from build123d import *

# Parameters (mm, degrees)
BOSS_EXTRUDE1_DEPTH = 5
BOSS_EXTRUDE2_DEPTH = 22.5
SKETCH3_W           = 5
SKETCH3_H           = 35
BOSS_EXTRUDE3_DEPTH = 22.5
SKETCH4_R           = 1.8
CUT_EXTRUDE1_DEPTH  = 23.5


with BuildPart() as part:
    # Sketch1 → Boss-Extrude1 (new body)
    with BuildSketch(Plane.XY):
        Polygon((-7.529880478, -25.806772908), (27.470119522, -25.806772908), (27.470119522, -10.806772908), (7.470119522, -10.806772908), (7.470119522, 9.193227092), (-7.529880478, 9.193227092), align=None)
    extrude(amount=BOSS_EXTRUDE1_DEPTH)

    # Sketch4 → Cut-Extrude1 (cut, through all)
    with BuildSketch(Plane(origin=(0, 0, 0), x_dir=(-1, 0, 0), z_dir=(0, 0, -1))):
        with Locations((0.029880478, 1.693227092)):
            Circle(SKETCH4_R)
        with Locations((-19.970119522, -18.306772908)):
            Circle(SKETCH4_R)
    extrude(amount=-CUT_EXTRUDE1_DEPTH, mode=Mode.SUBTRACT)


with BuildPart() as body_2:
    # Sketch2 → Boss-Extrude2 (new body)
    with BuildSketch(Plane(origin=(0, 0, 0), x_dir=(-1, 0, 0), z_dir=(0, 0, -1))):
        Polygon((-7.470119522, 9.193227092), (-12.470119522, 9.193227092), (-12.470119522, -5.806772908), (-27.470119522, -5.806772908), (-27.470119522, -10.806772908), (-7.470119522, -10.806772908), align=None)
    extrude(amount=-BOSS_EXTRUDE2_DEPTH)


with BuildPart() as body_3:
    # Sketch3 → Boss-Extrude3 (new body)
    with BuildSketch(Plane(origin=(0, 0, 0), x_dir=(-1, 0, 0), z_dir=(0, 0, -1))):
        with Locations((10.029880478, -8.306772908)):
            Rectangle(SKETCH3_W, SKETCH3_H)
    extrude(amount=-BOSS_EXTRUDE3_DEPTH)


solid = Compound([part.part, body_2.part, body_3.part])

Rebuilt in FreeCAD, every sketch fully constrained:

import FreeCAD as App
import Part
import Sketcher
from FreeCAD import Vector

doc = App.newDocument("Part")
params = doc.addObject("Spreadsheet::Sheet", "Params")
for row, (alias, value) in enumerate([
    ("sketch1_width", "35 mm"),
    ("sketch1_width2", "20 mm"),
    ("pad1_length", "5 mm"),
    ("sketch2_diameter", "3.6 mm"),
    ("sketch3_width", "5 mm"),
    ("sketch3_width2", "15 mm"),
    ("pad2_length", "22.5 mm"),
    ("sketch4_width", "5 mm"),
    ("sketch4_height", "35 mm"),
    ("pad3_length", "22.5 mm"),
], start=1):
    params.set(f"A{row}", alias)
    params.set(f"B{row}", "=" + value)
    params.setAlias(f"B{row}", alias)

body = doc.addObject("PartDesign::Body", "Body")

# Sketch on XY plane
sketch1 = doc.addObject("Sketcher::SketchObject", "Sketch")
body.addObject(sketch1)
sketch1.AttachmentSupport = (doc.XY_Plane, [""])
sketch1.MapMode = "FlatFace"
sketch1.addGeometry([
    Part.LineSegment(Vector(-8, -26, 0), Vector(27, -26, 0)),  # 0
    Part.LineSegment(Vector(27, -26, 0), Vector(27, -11, 0)),  # 1
    Part.LineSegment(Vector(27, -11, 0), Vector(7, -11, 0)),  # 2
    Part.LineSegment(Vector(7, -11, 0), Vector(7, 9, 0)),  # 3
    Part.LineSegment(Vector(7, 9, 0), Vector(-8, 9, 0)),  # 4
    Part.LineSegment(Vector(-8, 9, 0), Vector(-8, -26, 0)),  # 5
], False)
sketch1.addConstraint([
    Sketcher.Constraint("Coincident", 0, 2, 1, 1),
    Sketcher.Constraint("Coincident", 1, 2, 2, 1),
    Sketcher.Constraint("Coincident", 2, 2, 3, 1),
    Sketcher.Constraint("Coincident", 3, 2, 4, 1),
    Sketcher.Constraint("Coincident", 4, 2, 5, 1),
    Sketcher.Constraint("Coincident", 5, 2, 0, 1),
    Sketcher.Constraint("Horizontal", 0),
    Sketcher.Constraint("Vertical", 1),
    Sketcher.Constraint("Horizontal", 2),
    Sketcher.Constraint("Vertical", 3),
    Sketcher.Constraint("Horizontal", 4),
    Sketcher.Constraint("Vertical", 5),
    Sketcher.Constraint("Equal", 4, 1),
    Sketcher.Constraint("Equal", 2, 3),
    Sketcher.Constraint("DistanceX", 0, 1, 0, 2, 35.0),
    Sketcher.Constraint("DistanceX", 2, 2, 2, 1, 20.0),
    Sketcher.Constraint("DistanceX", -1, 1, 0, 2, 27.47012),
    Sketcher.Constraint("DistanceY", 0, 2, -1, 1, 25.806773),
])
sketch1.setExpression("Constraints[14]", "Params.sketch1_width")
sketch1.setExpression("Constraints[15]", "Params.sketch1_width2")
pad1 = doc.addObject("PartDesign::Pad", "Pad")
body.addObject(pad1)
pad1.Profile = sketch1
pad1.setExpression("Length", "Params.pad1_length")

# Sketch on XY plane
sketch2 = doc.addObject("Sketcher::SketchObject", "Sketch001")
body.addObject(sketch2)
sketch2.AttachmentSupport = (doc.XY_Plane, [""])
sketch2.MapMode = "FlatFace"
sketch2.addGeometry([
    Part.Circle(Vector(0, 1.7, 0), Vector(0, 0, 1), 1.8),
    Part.Circle(Vector(20, -18.3, 0), Vector(0, 0, 1), 1.8),
], False)
sketch2.addConstraint([
    Sketcher.Constraint("Equal", 0, 1),
    Sketcher.Constraint("Diameter", 0, 3.6),
    Sketcher.Constraint("DistanceX", 0, 3, 1, 3, 20.0),
    Sketcher.Constraint("DistanceY", 1, 3, 0, 3, 20.0),
    Sketcher.Constraint("DistanceX", 0, 3, -1, 1, 0.02988),
    Sketcher.Constraint("DistanceY", -1, 1, 0, 3, 1.693227),
])
sketch2.setExpression("Constraints[1]", "Params.sketch2_diameter")
pocket1 = doc.addObject("PartDesign::Pocket", "Pocket")
body.addObject(pocket1)
pocket1.Profile = sketch2
pocket1.Type = "ThroughAll"
pocket1.Reversed = True
body2 = doc.addObject("PartDesign::Body", "Body001")

# Sketch on XY plane
sketch3 = doc.addObject("Sketcher::SketchObject", "Sketch002")
body2.addObject(sketch3)
sketch3.AttachmentSupport = (doc.getObject("XY_Plane001"), [""])
sketch3.MapMode = "FlatFace"
sketch3.addGeometry([
    Part.LineSegment(Vector(7.5, 9.2, 0), Vector(12.5, 9.2, 0)),  # 0
    Part.LineSegment(Vector(12.5, 9.2, 0), Vector(12.5, -5.8, 0)),  # 1
    Part.LineSegment(Vector(12.5, -5.8, 0), Vector(27.5, -5.8, 0)),  # 2
    Part.LineSegment(Vector(27.5, -5.8, 0), Vector(27.5, -10.8, 0)),  # 3
    Part.LineSegment(Vector(27.5, -10.8, 0), Vector(7.5, -10.8, 0)),  # 4
    Part.LineSegment(Vector(7.5, -10.8, 0), Vector(7.5, 9.2, 0)),  # 5
], False)
sketch3.addConstraint([
    Sketcher.Constraint("Coincident", 0, 2, 1, 1),
    Sketcher.Constraint("Coincident", 1, 2, 2, 1),
    Sketcher.Constraint("Coincident", 2, 2, 3, 1),
    Sketcher.Constraint("Coincident", 3, 2, 4, 1),
    Sketcher.Constraint("Coincident", 4, 2, 5, 1),
    Sketcher.Constraint("Coincident", 5, 2, 0, 1),
    Sketcher.Constraint("Horizontal", 0),
    Sketcher.Constraint("Vertical", 1),
    Sketcher.Constraint("Horizontal", 2),
    Sketcher.Constraint("Vertical", 3),
    Sketcher.Constraint("Horizontal", 4),
    Sketcher.Constraint("Vertical", 5),
    Sketcher.Constraint("Equal", 2, 1),
    Sketcher.Constraint("Equal", 0, 3),
    Sketcher.Constraint("DistanceX", 0, 1, 0, 2, 5.0),
    Sketcher.Constraint("DistanceX", 2, 1, 2, 2, 15.0),
    Sketcher.Constraint("DistanceX", -1, 1, 0, 2, 12.47012),
    Sketcher.Constraint("DistanceY", -1, 1, 0, 2, 9.193227),
])
sketch3.setExpression("Constraints[14]", "Params.sketch3_width")
sketch3.setExpression("Constraints[15]", "Params.sketch3_width2")
pad2 = doc.addObject("PartDesign::Pad", "Pad001")
body2.addObject(pad2)
pad2.Profile = sketch3
pad2.setExpression("Length", "Params.pad2_length")
body3 = doc.addObject("PartDesign::Body", "Body002")

# Sketch on XY plane
sketch4 = doc.addObject("Sketcher::SketchObject", "Sketch003")
body3.addObject(sketch4)
sketch4.AttachmentSupport = (doc.getObject("XY_Plane002"), [""])
sketch4.MapMode = "FlatFace"
sketch4.addGeometry([
    Part.LineSegment(Vector(-8, 9, 0), Vector(-8, -26, 0)),
    Part.LineSegment(Vector(-8, -26, 0), Vector(-13, -26, 0)),
    Part.LineSegment(Vector(-13, -26, 0), Vector(-13, 9, 0)),
    Part.LineSegment(Vector(-13, 9, 0), Vector(-8, 9, 0)),
], False)
sketch4.addConstraint([
    Sketcher.Constraint("Coincident", 0, 2, 1, 1),
    Sketcher.Constraint("Coincident", 1, 2, 2, 1),
    Sketcher.Constraint("Coincident", 2, 2, 3, 1),
    Sketcher.Constraint("Coincident", 3, 2, 0, 1),
    Sketcher.Constraint("Vertical", 0),
    Sketcher.Constraint("Horizontal", 1),
    Sketcher.Constraint("Vertical", 2),
    Sketcher.Constraint("Horizontal", 3),
    Sketcher.Constraint("DistanceX", 1, 2, 1, 1, 5.0),
    Sketcher.Constraint("DistanceY", 0, 2, 0, 1, 35.0),
    Sketcher.Constraint("DistanceX", 0, 2, -1, 1, 7.52988),
    Sketcher.Constraint("DistanceY", 0, 2, -1, 1, 25.806773),
])
sketch4.setExpression("Constraints[8]", "Params.sketch4_width")
sketch4.setExpression("Constraints[9]", "Params.sketch4_height")
pad3 = doc.addObject("PartDesign::Pad", "Pad002")
body3.addObject(pad3)
pad3.Profile = sketch4
pad3.setExpression("Length", "Params.pad3_length")

doc.recompute()
